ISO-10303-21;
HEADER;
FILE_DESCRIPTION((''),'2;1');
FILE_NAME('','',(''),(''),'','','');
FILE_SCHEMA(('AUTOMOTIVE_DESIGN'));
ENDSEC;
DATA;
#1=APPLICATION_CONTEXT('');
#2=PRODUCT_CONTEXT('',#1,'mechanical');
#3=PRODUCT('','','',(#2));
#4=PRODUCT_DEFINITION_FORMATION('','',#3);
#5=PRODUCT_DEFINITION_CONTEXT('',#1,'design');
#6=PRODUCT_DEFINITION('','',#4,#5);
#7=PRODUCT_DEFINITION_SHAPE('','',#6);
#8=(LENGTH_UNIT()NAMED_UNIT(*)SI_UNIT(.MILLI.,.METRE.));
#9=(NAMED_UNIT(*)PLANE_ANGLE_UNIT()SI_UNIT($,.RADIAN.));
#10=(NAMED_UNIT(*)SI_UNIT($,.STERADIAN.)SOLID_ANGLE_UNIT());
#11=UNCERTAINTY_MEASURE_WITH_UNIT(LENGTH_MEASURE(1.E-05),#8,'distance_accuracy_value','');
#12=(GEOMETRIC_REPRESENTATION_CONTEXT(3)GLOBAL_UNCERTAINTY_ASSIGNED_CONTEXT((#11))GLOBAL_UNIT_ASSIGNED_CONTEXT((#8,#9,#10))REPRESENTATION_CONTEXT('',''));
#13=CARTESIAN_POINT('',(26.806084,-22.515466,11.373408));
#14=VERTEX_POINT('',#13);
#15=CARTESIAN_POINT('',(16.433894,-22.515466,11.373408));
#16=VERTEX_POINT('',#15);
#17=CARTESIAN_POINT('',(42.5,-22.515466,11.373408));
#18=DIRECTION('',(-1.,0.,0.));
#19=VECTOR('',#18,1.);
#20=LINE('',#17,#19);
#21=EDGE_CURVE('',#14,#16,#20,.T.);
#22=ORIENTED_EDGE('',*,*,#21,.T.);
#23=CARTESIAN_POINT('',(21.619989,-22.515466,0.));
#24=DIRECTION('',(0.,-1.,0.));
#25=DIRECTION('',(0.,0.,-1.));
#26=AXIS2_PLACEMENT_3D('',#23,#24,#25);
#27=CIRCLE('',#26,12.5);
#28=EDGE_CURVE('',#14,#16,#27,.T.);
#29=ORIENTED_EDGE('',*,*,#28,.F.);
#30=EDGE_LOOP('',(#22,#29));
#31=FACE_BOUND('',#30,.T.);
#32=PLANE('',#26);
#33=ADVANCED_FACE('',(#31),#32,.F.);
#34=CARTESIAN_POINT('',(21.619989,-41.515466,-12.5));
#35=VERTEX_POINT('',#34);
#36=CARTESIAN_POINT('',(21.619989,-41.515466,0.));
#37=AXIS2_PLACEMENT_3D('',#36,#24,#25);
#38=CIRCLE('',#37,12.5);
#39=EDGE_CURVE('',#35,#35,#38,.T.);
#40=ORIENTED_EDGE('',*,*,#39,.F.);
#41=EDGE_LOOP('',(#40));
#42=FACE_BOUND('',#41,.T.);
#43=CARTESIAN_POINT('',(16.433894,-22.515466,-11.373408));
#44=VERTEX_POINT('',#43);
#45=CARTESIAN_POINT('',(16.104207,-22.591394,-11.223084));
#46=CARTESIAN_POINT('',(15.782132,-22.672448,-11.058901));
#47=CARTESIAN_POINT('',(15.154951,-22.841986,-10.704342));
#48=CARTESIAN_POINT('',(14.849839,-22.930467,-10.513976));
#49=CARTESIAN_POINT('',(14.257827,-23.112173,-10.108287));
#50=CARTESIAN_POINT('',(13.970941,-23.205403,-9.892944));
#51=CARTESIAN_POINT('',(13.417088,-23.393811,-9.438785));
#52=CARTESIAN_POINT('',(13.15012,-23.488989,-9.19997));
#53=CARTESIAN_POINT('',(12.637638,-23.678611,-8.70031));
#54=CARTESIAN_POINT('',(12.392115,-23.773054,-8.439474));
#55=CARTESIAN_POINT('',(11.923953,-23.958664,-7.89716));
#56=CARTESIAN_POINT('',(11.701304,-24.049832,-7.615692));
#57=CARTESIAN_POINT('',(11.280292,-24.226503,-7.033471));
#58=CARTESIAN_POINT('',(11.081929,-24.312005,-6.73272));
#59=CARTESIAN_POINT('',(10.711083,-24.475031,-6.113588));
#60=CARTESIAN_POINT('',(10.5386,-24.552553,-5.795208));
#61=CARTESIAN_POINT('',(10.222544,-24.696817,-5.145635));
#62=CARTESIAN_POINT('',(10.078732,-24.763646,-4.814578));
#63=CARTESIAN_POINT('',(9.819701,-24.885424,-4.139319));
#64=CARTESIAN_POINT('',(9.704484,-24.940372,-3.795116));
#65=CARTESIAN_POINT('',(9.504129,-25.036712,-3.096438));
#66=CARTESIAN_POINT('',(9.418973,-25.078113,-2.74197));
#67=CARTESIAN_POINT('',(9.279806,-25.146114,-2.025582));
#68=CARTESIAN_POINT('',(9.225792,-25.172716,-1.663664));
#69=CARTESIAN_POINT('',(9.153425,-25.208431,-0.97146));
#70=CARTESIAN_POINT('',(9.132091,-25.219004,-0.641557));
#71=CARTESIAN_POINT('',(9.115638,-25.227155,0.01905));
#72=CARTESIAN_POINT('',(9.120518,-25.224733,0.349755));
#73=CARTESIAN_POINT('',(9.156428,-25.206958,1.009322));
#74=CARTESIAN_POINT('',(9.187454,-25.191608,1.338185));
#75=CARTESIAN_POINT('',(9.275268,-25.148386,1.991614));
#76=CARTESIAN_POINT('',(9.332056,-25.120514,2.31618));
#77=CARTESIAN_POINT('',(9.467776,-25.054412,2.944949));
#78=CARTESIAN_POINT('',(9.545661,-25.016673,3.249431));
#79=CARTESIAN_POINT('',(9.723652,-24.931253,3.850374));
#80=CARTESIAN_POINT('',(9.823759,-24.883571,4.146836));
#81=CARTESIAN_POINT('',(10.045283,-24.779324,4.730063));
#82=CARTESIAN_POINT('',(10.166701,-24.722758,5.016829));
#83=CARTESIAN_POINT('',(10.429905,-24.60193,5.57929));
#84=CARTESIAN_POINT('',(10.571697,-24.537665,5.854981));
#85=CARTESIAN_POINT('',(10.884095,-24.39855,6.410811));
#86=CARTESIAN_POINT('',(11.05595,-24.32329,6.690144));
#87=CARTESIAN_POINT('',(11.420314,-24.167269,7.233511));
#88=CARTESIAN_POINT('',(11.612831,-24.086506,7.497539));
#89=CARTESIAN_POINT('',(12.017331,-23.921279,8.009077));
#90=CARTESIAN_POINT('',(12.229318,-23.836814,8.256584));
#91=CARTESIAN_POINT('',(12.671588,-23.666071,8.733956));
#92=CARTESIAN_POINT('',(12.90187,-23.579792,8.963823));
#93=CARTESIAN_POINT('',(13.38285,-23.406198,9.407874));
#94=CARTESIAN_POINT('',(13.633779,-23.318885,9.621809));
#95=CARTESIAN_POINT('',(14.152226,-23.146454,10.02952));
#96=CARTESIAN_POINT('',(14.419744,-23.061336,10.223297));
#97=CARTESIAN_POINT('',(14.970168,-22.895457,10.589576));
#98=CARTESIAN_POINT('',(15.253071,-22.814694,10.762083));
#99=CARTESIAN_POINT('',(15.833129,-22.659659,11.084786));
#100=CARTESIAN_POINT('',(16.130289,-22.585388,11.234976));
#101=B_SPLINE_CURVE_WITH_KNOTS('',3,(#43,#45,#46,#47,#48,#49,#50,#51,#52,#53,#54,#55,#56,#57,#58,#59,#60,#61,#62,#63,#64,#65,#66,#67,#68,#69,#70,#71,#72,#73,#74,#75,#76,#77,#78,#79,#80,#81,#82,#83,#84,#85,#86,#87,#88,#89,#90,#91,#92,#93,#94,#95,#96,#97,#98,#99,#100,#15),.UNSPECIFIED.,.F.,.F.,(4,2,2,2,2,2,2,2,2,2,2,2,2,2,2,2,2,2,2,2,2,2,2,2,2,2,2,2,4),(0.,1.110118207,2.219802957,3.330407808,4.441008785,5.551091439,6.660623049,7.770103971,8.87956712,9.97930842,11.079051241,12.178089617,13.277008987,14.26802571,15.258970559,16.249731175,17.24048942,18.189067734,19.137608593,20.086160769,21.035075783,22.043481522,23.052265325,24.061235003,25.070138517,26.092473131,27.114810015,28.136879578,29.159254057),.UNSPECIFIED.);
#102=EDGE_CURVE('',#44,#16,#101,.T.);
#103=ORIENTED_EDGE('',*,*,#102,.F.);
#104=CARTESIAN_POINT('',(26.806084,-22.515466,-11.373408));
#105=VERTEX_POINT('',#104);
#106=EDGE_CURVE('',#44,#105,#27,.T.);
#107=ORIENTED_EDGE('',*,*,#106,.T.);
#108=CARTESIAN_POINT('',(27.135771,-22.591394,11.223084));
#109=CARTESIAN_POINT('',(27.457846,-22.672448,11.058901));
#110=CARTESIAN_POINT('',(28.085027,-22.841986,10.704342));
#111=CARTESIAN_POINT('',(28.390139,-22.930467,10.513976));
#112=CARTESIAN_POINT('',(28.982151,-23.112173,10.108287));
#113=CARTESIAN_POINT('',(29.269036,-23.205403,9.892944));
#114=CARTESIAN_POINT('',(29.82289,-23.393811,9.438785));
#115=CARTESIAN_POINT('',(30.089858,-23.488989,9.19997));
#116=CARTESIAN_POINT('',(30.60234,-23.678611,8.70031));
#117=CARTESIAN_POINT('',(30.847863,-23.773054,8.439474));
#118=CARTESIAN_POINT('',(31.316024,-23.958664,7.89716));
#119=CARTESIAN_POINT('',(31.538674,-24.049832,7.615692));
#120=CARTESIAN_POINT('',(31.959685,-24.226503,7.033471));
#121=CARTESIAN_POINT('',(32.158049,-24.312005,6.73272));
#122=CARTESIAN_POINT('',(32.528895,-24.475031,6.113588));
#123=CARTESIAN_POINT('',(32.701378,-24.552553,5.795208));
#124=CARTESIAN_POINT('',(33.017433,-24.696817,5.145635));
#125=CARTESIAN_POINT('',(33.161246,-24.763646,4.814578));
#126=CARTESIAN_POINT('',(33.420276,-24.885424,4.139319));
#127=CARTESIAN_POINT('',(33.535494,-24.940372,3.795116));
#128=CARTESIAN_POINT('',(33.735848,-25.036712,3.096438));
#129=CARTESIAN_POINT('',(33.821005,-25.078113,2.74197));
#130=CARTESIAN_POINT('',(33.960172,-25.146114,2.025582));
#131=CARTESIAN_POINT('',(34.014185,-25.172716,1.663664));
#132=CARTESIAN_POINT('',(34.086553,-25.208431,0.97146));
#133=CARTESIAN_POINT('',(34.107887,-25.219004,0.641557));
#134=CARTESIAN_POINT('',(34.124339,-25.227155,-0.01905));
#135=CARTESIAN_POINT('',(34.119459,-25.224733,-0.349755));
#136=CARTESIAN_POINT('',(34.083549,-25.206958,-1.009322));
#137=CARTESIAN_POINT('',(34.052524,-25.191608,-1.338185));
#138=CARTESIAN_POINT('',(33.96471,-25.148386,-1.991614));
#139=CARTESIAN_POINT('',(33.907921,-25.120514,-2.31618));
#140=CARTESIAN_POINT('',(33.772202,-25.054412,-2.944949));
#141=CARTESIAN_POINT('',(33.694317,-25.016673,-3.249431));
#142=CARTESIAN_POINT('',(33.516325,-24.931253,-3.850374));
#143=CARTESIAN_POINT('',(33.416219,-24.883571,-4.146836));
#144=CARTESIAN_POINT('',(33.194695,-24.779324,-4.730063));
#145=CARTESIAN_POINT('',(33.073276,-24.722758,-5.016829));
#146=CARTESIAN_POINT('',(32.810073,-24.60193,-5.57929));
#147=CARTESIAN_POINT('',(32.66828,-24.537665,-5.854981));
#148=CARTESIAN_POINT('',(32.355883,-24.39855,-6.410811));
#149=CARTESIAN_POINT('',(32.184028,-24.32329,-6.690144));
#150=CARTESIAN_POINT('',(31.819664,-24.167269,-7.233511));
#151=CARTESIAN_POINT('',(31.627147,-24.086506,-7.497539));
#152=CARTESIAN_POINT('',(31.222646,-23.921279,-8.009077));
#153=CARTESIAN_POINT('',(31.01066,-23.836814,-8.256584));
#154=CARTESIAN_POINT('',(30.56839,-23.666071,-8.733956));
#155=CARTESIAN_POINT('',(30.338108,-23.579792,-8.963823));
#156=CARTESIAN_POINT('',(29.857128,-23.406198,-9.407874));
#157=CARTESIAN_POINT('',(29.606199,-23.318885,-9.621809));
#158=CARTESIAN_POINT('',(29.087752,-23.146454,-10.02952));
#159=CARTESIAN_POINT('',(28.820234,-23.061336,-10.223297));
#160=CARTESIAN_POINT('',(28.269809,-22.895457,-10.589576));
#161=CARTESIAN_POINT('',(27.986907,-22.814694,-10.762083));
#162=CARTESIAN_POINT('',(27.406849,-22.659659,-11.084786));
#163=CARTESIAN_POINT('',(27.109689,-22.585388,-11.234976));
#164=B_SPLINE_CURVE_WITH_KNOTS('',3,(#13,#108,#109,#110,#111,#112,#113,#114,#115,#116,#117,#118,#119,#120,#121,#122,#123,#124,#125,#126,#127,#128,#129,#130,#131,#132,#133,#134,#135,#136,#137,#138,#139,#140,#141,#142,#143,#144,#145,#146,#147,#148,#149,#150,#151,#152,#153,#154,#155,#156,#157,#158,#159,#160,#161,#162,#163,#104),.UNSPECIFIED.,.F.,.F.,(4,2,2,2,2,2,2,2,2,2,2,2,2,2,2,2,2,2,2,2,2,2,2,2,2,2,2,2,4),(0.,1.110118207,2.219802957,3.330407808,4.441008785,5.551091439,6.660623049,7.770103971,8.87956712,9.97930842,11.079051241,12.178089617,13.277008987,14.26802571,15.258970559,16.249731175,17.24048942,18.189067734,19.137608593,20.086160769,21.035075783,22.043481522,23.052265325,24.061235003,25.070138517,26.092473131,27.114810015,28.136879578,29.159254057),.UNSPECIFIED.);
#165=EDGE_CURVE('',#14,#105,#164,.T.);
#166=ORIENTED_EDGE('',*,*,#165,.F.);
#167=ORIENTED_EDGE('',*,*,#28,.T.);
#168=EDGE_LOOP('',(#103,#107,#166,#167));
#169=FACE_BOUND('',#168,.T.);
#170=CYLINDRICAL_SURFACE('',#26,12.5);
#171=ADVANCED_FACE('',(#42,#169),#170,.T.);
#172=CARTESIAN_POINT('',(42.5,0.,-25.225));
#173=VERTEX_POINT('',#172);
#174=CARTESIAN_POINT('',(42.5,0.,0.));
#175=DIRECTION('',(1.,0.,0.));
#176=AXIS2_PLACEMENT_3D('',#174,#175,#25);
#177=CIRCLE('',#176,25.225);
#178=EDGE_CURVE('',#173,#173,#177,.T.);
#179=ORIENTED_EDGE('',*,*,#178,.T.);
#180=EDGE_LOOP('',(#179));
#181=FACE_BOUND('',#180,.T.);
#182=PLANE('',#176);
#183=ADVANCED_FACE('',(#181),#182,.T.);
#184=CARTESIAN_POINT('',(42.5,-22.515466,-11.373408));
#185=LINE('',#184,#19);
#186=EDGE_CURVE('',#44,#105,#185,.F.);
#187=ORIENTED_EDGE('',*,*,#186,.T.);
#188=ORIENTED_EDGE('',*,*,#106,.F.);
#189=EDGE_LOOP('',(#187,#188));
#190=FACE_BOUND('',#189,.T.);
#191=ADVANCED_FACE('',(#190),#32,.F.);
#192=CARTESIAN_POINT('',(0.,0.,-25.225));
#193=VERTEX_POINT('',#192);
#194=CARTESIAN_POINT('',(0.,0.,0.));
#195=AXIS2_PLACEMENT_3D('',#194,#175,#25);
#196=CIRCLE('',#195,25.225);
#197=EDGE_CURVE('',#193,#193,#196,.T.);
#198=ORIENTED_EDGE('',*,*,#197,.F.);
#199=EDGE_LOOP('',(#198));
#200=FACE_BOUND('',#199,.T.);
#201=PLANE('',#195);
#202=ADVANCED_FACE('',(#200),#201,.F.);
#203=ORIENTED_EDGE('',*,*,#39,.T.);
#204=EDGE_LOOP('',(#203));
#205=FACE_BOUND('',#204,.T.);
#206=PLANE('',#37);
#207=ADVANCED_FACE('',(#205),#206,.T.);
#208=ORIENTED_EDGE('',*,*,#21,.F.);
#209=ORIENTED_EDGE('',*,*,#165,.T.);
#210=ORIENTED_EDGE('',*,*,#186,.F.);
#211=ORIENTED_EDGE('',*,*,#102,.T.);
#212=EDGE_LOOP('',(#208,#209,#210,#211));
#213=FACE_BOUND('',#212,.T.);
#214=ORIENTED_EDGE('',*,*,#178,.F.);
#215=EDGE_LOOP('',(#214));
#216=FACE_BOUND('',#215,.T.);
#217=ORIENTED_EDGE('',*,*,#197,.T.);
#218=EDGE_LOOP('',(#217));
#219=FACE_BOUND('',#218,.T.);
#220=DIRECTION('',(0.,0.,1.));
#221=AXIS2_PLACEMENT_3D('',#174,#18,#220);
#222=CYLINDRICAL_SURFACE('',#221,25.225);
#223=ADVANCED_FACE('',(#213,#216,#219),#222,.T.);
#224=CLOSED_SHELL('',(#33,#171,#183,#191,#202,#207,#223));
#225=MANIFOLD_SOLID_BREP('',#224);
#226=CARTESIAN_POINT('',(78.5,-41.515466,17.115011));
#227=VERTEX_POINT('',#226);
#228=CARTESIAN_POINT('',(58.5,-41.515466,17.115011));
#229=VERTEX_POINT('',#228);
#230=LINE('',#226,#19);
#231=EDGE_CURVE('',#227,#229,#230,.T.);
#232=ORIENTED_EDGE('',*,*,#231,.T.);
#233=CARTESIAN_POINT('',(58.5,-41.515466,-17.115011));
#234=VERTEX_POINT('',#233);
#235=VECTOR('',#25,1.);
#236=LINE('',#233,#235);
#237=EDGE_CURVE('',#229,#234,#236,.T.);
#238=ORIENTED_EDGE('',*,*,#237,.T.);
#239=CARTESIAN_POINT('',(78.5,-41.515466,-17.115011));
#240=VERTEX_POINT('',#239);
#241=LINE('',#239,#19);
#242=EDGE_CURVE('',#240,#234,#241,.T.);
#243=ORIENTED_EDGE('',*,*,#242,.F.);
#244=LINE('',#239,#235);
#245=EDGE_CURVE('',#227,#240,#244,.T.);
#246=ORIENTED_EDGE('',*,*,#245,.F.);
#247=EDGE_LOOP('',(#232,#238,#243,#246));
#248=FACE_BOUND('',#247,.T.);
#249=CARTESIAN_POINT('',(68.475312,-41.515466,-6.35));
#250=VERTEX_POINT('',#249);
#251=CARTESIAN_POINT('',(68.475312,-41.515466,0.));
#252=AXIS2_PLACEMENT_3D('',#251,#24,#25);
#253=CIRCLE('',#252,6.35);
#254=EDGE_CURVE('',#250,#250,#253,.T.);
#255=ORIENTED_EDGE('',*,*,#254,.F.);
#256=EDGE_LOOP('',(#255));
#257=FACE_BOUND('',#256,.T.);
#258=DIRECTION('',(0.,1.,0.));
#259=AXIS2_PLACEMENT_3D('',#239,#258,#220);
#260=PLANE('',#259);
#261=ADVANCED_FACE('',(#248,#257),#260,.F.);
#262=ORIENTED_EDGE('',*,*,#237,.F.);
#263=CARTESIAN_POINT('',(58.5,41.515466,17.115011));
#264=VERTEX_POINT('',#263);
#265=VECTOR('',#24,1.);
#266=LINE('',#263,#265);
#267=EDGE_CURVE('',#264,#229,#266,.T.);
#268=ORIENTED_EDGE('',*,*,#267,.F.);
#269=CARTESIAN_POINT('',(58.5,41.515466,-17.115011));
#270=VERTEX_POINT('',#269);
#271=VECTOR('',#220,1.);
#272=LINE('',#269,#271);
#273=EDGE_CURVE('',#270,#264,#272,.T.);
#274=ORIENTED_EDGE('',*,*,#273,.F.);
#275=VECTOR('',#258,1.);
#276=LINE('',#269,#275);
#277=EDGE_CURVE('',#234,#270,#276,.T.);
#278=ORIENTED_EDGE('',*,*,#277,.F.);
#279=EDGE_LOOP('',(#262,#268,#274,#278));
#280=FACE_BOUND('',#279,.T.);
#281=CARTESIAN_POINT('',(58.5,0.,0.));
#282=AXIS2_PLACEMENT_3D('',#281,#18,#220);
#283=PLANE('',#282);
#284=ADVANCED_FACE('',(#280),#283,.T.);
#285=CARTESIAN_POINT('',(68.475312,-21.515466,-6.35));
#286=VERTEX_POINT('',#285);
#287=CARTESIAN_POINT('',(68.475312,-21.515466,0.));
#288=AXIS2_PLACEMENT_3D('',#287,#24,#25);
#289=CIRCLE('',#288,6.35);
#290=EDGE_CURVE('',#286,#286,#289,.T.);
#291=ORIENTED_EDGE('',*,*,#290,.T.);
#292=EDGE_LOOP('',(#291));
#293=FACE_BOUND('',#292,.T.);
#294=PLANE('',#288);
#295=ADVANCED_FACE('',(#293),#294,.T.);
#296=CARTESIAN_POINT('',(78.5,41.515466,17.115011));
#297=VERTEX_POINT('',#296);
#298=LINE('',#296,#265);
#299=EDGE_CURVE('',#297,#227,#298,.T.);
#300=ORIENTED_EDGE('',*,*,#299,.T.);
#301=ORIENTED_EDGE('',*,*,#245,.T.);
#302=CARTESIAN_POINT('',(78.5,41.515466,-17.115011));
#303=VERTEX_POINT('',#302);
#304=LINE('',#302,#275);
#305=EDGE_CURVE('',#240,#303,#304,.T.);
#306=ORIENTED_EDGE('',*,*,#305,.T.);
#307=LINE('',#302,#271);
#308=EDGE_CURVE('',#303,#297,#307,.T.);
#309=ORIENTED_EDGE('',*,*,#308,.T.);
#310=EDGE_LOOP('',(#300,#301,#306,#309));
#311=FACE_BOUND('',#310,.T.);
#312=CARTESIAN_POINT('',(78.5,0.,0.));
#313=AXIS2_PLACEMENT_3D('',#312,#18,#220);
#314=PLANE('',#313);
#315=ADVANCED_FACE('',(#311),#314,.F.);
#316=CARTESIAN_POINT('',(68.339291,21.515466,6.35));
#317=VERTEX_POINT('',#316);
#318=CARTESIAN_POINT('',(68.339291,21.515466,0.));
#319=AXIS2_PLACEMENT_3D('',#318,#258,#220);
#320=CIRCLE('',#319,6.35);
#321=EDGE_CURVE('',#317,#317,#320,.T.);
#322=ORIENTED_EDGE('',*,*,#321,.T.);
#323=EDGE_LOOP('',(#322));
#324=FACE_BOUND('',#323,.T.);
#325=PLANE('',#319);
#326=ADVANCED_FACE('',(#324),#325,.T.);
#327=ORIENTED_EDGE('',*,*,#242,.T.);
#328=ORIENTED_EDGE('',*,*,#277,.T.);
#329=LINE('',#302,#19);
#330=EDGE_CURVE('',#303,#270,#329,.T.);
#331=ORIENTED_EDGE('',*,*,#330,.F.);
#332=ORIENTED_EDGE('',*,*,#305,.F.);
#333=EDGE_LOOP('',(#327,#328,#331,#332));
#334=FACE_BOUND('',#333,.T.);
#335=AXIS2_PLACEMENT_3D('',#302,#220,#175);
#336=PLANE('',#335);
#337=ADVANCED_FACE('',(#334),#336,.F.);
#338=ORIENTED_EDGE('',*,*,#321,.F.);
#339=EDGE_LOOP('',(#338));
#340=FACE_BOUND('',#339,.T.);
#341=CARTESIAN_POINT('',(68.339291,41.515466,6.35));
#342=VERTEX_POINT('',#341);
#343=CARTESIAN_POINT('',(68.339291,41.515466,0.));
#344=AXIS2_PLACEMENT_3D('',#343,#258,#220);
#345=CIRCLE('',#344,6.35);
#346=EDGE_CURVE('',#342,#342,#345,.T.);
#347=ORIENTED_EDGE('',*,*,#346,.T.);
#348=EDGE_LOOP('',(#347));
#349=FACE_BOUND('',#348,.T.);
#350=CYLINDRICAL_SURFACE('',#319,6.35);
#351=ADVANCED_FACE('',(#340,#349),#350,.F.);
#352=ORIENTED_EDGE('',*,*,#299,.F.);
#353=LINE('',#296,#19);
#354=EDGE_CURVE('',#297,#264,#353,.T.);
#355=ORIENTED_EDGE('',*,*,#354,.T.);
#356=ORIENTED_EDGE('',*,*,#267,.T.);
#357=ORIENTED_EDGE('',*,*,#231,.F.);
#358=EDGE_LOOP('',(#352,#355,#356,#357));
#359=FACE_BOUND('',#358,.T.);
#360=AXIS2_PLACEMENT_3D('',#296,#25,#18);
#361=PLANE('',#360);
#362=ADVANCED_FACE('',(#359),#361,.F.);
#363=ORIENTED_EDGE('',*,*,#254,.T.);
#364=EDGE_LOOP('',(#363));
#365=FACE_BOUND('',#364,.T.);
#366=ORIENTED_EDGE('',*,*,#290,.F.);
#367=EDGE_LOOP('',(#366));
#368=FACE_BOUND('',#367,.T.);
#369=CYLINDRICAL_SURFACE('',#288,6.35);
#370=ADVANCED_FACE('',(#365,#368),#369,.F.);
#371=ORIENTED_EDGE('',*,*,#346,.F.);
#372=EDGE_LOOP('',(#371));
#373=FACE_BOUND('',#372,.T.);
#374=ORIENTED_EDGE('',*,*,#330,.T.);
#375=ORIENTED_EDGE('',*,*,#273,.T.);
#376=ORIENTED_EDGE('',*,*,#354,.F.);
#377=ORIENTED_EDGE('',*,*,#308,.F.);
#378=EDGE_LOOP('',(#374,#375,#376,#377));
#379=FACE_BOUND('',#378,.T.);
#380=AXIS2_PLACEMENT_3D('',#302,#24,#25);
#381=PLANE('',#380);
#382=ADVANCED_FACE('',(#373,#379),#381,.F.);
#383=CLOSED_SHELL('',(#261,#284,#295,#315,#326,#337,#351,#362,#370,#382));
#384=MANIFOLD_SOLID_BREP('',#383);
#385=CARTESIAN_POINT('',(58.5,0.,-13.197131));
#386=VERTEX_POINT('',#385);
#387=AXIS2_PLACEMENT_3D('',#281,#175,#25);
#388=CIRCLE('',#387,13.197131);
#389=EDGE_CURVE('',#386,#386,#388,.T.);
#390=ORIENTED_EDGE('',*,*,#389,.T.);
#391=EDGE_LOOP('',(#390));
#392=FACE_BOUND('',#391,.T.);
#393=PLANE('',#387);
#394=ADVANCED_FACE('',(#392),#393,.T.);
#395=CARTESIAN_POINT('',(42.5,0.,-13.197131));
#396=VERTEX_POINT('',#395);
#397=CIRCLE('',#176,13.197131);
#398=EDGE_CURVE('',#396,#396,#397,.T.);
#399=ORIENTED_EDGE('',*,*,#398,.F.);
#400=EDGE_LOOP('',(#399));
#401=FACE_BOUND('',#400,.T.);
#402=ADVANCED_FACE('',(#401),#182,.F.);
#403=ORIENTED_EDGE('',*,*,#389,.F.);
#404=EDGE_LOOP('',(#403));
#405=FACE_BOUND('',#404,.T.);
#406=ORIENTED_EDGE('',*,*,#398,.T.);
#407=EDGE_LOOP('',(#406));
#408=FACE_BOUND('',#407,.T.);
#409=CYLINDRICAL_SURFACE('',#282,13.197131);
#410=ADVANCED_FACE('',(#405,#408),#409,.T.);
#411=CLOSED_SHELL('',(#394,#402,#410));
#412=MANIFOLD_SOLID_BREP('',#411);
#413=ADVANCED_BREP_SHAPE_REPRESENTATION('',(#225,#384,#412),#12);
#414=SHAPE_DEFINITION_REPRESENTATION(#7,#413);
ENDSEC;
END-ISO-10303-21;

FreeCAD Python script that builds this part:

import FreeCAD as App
import Part
import Sketcher
from FreeCAD import Vector


def add_polygon(sketch, points):
    """Adds a closed chain of lines whose ends are joined by coincident constraints."""
    first, n = sketch.GeometryCount, len(points)
    for a, b in zip(points, points[1:] + points[:1]):
        sketch.addGeometry(Part.LineSegment(App.Vector(*a, 0), App.Vector(*b, 0)), False)
    for i in range(n):
        sketch.addConstraint(Sketcher.Constraint("Coincident", first + i, 2, first + (i + 1) % n, 1))

doc = App.newDocument("Part")
body = doc.addObject("PartDesign::Body", "Body")

sketch1 = body.newObject("Sketcher::SketchObject", "Sketch")
sketch1.AttachmentSupport = (doc.getObject("YZ_Plane"), [""])
sketch1.MapMode = "FlatFace"
sketch1.addGeometry(Part.Circle(Vector(0, 0, 0), Vector(0, 0, 1), 25), False)
sketch1.addConstraint(Sketcher.Constraint("Coincident", 0, 3, -1, 1))
sketch1.addConstraint(Sketcher.Constraint("Diameter", 0, 50.45))
pad1 = body.newObject("PartDesign::Pad", "Pad")
pad1.Profile = sketch1
pad1.Length = 42.5

sketch2 = body.newObject("Sketcher::SketchObject", "Sketch001")
sketch2.AttachmentSupport = (doc.getObject("XZ_Plane"), [""])
sketch2.MapMode = "FlatFace"
sketch2.AttachmentOffset = App.Placement(Vector(0, 0, 41.515466), App.Rotation())
sketch2.addGeometry(Part.Circle(Vector(22, 0, 0), Vector(0, 0, 1), 12), False)
sketch2.addConstraint(Sketcher.Constraint("PointOnObject", 0, 3, -1))
sketch2.addConstraint(Sketcher.Constraint("Diameter", 0, 25.0))
sketch2.addConstraint(Sketcher.Constraint("DistanceX", -1, 1, 0, 3, 21.619989))
pad2 = body.newObject("PartDesign::Pad", "Pad001")
pad2.Profile = sketch2
pad2.Length = 19
pad2.Reversed = True
body2 = doc.addObject("PartDesign::Body", "Body001")

sketch3 = body2.newObject("Sketcher::SketchObject", "Sketch002")
sketch3.AttachmentSupport = (doc.getObject("YZ_Plane001"), [""])
sketch3.MapMode = "FlatFace"
sketch3.AttachmentOffset = App.Placement(Vector(0, 0, 42.5), App.Rotation())
sketch3.addGeometry(Part.Circle(Vector(0, 0, 0), Vector(0, 0, 1), 13), False)
sketch3.addConstraint(Sketcher.Constraint("Coincident", 0, 3, -1, 1))
sketch3.addConstraint(Sketcher.Constraint("Diameter", 0, 26.394262))
pad3 = body2.newObject("PartDesign::Pad", "Pad002")
pad3.Profile = sketch3
pad3.Length = 16
body3 = doc.addObject("PartDesign::Body", "Body002")

sketch4 = body3.newObject("Sketcher::SketchObject", "Sketch003")
sketch4.AttachmentSupport = (doc.getObject("YZ_Plane002"), [""])
sketch4.MapMode = "FlatFace"
sketch4.AttachmentOffset = App.Placement(Vector(0, 0, 58.5), App.Rotation())
add_polygon(sketch4, [(42, 17), (-42, 17), (-42, -17), (42, -17)])
sketch4.addConstraint(Sketcher.Constraint("Horizontal", 0))
sketch4.addConstraint(Sketcher.Constraint("Vertical", 1))
sketch4.addConstraint(Sketcher.Constraint("Horizontal", 2))
sketch4.addConstraint(Sketcher.Constraint("Vertical", 3))
sketch4.addConstraint(Sketcher.Constraint("Symmetric", 0, 2, 2, 2, -1, 1))
sketch4.addConstraint(Sketcher.Constraint("DistanceX", 0, 2, 0, 1, 83.030932))
sketch4.addConstraint(Sketcher.Constraint("DistanceY", 1, 2, 1, 1, 34.230022))
pad4 = body3.newObject("PartDesign::Pad", "Pad003")
pad4.Profile = sketch4
pad4.Length = 20

sketch5 = body3.newObject("Sketcher::SketchObject", "Sketch004")
sketch5.AttachmentSupport = (doc.getObject("XZ_Plane002"), [""])
sketch5.MapMode = "FlatFace"
sketch5.AttachmentOffset = App.Placement(Vector(0, 0, -41.515466), App.Rotation())
sketch5.addGeometry(Part.Circle(Vector(68, 0, 0), Vector(0, 0, 1), 6), False)
sketch5.addConstraint(Sketcher.Constraint("PointOnObject", 0, 3, -1))
sketch5.addConstraint(Sketcher.Constraint("Diameter", 0, 12.7))
sketch5.addConstraint(Sketcher.Constraint("DistanceX", -1, 1, 0, 3, 68.339291))
pocket1 = body3.newObject("PartDesign::Pocket", "Pocket")
pocket1.Profile = sketch5
pocket1.Length = 20
pocket1.Reversed = True

sketch6 = body3.newObject("Sketcher::SketchObject", "Sketch005")
sketch6.AttachmentSupport = (doc.getObject("XZ_Plane002"), [""])
sketch6.MapMode = "FlatFace"
sketch6.AttachmentOffset = App.Placement(Vector(0, 0, 41.515466), App.Rotation())
sketch6.addGeometry(Part.Circle(Vector(68, 0, 0), Vector(0, 0, 1), 6), False)
sketch6.addConstraint(Sketcher.Constraint("PointOnObject", 0, 3, -1))
sketch6.addConstraint(Sketcher.Constraint("Diameter", 0, 12.7))
sketch6.addConstraint(Sketcher.Constraint("DistanceX", -1, 1, 0, 3, 68.475312))
pocket2 = body3.newObject("PartDesign::Pocket", "Pocket001")
pocket2.Profile = sketch6
pocket2.Length = 20

doc.recompute()
